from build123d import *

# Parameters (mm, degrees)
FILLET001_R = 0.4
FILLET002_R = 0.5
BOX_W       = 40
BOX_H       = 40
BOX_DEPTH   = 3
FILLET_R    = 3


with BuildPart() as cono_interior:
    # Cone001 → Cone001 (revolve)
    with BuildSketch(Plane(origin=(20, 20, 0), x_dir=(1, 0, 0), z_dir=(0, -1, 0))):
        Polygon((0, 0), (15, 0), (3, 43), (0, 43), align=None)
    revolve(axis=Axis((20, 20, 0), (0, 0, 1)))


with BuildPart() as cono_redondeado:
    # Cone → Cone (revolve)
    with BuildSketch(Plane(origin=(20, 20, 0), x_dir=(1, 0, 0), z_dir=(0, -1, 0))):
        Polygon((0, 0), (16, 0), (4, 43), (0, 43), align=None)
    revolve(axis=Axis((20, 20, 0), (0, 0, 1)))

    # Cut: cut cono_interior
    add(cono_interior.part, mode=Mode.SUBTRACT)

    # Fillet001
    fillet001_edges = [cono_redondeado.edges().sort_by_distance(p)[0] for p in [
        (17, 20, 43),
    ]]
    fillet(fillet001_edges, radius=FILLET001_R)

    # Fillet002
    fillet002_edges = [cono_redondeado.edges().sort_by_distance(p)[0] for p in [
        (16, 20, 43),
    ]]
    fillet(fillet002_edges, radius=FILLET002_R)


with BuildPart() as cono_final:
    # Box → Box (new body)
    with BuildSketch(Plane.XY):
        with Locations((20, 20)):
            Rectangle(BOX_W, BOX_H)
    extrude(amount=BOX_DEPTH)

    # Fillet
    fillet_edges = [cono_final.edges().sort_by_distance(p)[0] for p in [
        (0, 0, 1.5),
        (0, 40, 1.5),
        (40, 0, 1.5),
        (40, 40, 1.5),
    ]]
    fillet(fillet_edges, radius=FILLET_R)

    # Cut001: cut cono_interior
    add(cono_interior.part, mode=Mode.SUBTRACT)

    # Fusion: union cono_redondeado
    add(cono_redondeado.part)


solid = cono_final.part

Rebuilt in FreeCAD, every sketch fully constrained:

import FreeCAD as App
import Part
import Sketcher

V = App.Vector


def edges_at(feature, points):
    """Names of the edges that pass closest to the given points."""
    edges = feature.Shape.Edges
    near = lambda p: min(range(len(edges)), key=lambda i: edges[i].distToShape(Part.Vertex(*p))[0])
    return sorted({f"Edge{near(p) + 1}" for p in points})

doc = App.newDocument("Part")
body = doc.addObject("PartDesign::Body", "Body")

sketch1 = body.newObject("Sketcher::SketchObject", "Sketch")
sketch1.AttachmentSupport = (doc.getObject("XZ_Plane"), [""])
sketch1.MapMode = "FlatFace"
sketch1.AttachmentOffset = App.Placement(V(0, 0, -20), App.Rotation())
sketch1.addGeometry(Part.LineSegment(V(20, 0, 0), V(35, 0, 0)), False)
sketch1.addGeometry(Part.LineSegment(V(35, 0, 0), V(23, 43, 0)), False)
sketch1.addGeometry(Part.LineSegment(V(23, 43, 0), V(20, 43, 0)), False)
sketch1.addGeometry(Part.LineSegment(V(20, 43, 0), V(20, 0, 0)), False)
sketch1.addGeometry(Part.LineSegment(V(20, 0, 0), V(20, 43, 0)), True)
sketch1.addConstraint(Sketcher.Constraint("Coincident", 0, 2, 1, 1))
sketch1.addConstraint(Sketcher.Constraint("Coincident", 1, 2, 2, 1))
sketch1.addConstraint(Sketcher.Constraint("Coincident", 2, 2, 3, 1))
sketch1.addConstraint(Sketcher.Constraint("Coincident", 3, 2, 0, 1))
sketch1.addConstraint(Sketcher.Constraint("Horizontal", 0))
sketch1.addConstraint(Sketcher.Constraint("Horizontal", 2))
sketch1.addConstraint(Sketcher.Constraint("Vertical", 3))
sketch1.addConstraint(Sketcher.Constraint("Vertical", 4))
sketch1.addConstraint(Sketcher.Constraint("Coincident", 4, 1, 3, 2))
sketch1.addConstraint(Sketcher.Constraint("PointOnObject", 0, 2, -1))
sketch1.addConstraint(Sketcher.Constraint("Horizontal", 1, 2, 4, 2))
sketch1.addConstraint(Sketcher.Constraint("DistanceX", 0, 1, 0, 2, 15.0))
sketch1.addConstraint(Sketcher.Constraint("DistanceX", 2, 2, 2, 1, 3.0))
sketch1.addConstraint(Sketcher.Constraint("DistanceY", 3, 2, 3, 1, 43.0))
sketch1.addConstraint(Sketcher.Constraint("DistanceX", -1, 1, 0, 2, 35.0))
revolution = body.newObject("PartDesign::Revolution", "Revolution")
revolution.Profile = sketch1
revolution.ReferenceAxis = (sketch1, ["Axis0"])
revolution.Angle = 360
body2 = doc.addObject("PartDesign::Body", "Body001")

sketch2 = body2.newObject("Sketcher::SketchObject", "Sketch001")
sketch2.AttachmentSupport = (doc.getObject("XZ_Plane001"), [""])
sketch2.MapMode = "FlatFace"
sketch2.AttachmentOffset = App.Placement(V(0, 0, -20), App.Rotation())
sketch2.addGeometry(Part.LineSegment(V(20, 0, 0), V(36, 0, 0)), False)
sketch2.addGeometry(Part.LineSegment(V(36, 0, 0), V(24, 43, 0)), False)
sketch2.addGeometry(Part.LineSegment(V(24, 43, 0), V(20, 43, 0)), False)
sketch2.addGeometry(Part.LineSegment(V(20, 43, 0), V(20, 0, 0)), False)
sketch2.addGeometry(Part.LineSegment(V(20, 0, 0), V(20, 43, 0)), True)
sketch2.addConstraint(Sketcher.Constraint("Coincident", 0, 2, 1, 1))
sketch2.addConstraint(Sketcher.Constraint("Coincident", 1, 2, 2, 1))
sketch2.addConstraint(Sketcher.Constraint("Coincident", 2, 2, 3, 1))
sketch2.addConstraint(Sketcher.Constraint("Coincident", 3, 2, 0, 1))
sketch2.addConstraint(Sketcher.Constraint("Horizontal", 0))
sketch2.addConstraint(Sketcher.Constraint("Horizontal", 2))
sketch2.addConstraint(Sketcher.Constraint("Vertical", 3))
sketch2.addConstraint(Sketcher.Constraint("Vertical", 4))
sketch2.addConstraint(Sketcher.Constraint("Coincident", 4, 1, 3, 2))
sketch2.addConstraint(Sketcher.Constraint("PointOnObject", 0, 2, -1))
sketch2.addConstraint(Sketcher.Constraint("Horizontal", 1, 2, 4, 2))
sketch2.addConstraint(Sketcher.Constraint("DistanceX", 0, 1, 0, 2, 16.0))
sketch2.addConstraint(Sketcher.Constraint("DistanceX", 2, 2, 2, 1, 4.0))
sketch2.addConstraint(Sketcher.Constraint("DistanceY", 3, 2, 3, 1, 43.0))
sketch2.addConstraint(Sketcher.Constraint("DistanceX", -1, 1, 0, 2, 36.0))
revolution2 = body2.newObject("PartDesign::Revolution", "Revolution001")
revolution2.Profile = sketch2
revolution2.ReferenceAxis = (sketch2, ["Axis0"])
revolution2.Angle = 360
doc.recompute()

body3 = doc.addObject("PartDesign::Body", "Body002")
body3.BaseFeature = body
boolean = body2.newObject("PartDesign::Boolean", "Boolean")
boolean.Type = "Cut"
boolean.addObjects([body3])
doc.recompute()

fillet = body2.newObject("PartDesign::Fillet", "Fillet")
fillet.Base = (boolean, edges_at(boolean, [(17, 20, 43)]))
fillet.Radius = 0.4
doc.recompute()

fillet2 = body2.newObject("PartDesign::Fillet", "Fillet001")
fillet2.Base = (fillet, edges_at(fillet, [(16, 20, 43)]))
fillet2.Radius = 0.5
body4 = doc.addObject("PartDesign::Body", "Body003")

sketch3 = body4.newObject("Sketcher::SketchObject", "Sketch002")
sketch3.AttachmentSupport = (doc.getObject("XY_Plane003"), [""])
sketch3.MapMode = "FlatFace"
sketch3.addGeometry(Part.LineSegment(V(0, 40, 0), V(0, 0, 0)), False)
sketch3.addGeometry(Part.LineSegment(V(0, 0, 0), V(40, 0, 0)), False)
sketch3.addGeometry(Part.LineSegment(V(40, 0, 0), V(40, 40, 0)), False)
sketch3.addGeometry(Part.LineSegment(V(40, 40, 0), V(0, 40, 0)), False)
sketch3.addConstraint(Sketcher.Constraint("Coincident", 0, 2, 1, 1))
sketch3.addConstraint(Sketcher.Constraint("Coincident", 1, 2, 2, 1))
sketch3.addConstraint(Sketcher.Constraint("Coincident", 2, 2, 3, 1))
sketch3.addConstraint(Sketcher.Constraint("Coincident", 3, 2, 0, 1))
sketch3.addConstraint(Sketcher.Constraint("Vertical", 0))
sketch3.addConstraint(Sketcher.Constraint("Horizontal", 1))
sketch3.addConstraint(Sketcher.Constraint("Vertical", 2))
sketch3.addConstraint(Sketcher.Constraint("Horizontal", 3))
sketch3.addConstraint(Sketcher.Constraint("Coincident", 0, 2, -1, 1))
sketch3.addConstraint(Sketcher.Constraint("Equal", 3, 0))
sketch3.addConstraint(Sketcher.Constraint("DistanceX", 1, 1, 1, 2, 40.0))
pad1 = body4.newObject("PartDesign::Pad", "Pad")
pad1.Profile = sketch3
pad1.Length = 3
doc.recompute()

fillet3 = body4.newObject("PartDesign::Fillet", "Fillet002")
fillet3.Base = (pad1, edges_at(pad1, [
    (0, 0, 1.5),
    (0, 40, 1.5),
    (40, 0, 1.5),
    (40, 40, 1.5),
]))
fillet3.Radius = 3
doc.recompute()

boolean2 = body4.newObject("PartDesign::Boolean", "Boolean001")
boolean2.Type = "Cut"
boolean2.addObjects([body])
doc.recompute()

boolean3 = body4.newObject("PartDesign::Boolean", "Boolean002")
boolean3.Type = "Fuse"
boolean3.addObjects([body2])

doc.recompute()
